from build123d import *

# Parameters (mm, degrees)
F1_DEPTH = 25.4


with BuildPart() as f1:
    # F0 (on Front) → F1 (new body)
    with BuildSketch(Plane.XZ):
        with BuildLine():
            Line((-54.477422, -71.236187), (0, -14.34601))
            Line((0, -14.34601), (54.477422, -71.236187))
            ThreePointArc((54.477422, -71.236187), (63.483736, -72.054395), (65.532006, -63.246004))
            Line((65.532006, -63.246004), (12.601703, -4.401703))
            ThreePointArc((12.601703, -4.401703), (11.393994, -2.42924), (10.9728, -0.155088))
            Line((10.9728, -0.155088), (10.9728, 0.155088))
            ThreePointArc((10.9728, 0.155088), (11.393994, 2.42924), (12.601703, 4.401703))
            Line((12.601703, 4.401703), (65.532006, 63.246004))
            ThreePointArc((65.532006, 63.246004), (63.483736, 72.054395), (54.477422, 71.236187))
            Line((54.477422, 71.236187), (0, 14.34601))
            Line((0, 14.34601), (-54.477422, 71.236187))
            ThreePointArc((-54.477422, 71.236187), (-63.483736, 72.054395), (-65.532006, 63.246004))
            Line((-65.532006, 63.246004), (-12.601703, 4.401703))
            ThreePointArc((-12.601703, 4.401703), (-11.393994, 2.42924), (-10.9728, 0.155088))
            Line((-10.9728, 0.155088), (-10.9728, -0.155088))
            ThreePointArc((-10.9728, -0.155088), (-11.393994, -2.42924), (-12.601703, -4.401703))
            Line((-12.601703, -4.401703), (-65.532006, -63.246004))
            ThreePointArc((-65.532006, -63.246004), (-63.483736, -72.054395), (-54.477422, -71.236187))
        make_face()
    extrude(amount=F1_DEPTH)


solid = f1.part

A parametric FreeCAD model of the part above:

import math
import FreeCAD as App
import Part
import Sketcher
Q = App.Units.Quantity

doc = App.newDocument("Part")
body = doc.addObject("PartDesign::Body", "Body")

# Sketch on XZ plane
sketch1 = doc.addObject("Sketcher::SketchObject", "Sketch")
body.addObject(sketch1)
sketch1.AttachmentSupport = (doc.XZ_Plane, [""])
sketch1.MapMode = "FlatFace"
sketch1.addGeometry(Part.LineSegment(App.Vector(-54.477422, -71.236187, 0), App.Vector(0, -14.34601, 0)), False)
sketch1.addGeometry(Part.LineSegment(App.Vector(0, -14.34601, 0), App.Vector(54.477422, -71.236187, 0)), False)
sketch1.addGeometry(Part.ArcOfCircle(Part.Circle(App.Vector(59.450368, -66.474147, 0), App.Vector(0, 0, 1), 6.88529), math.radians(-136.241107), math.radians(27.959434)), False)
sketch1.addGeometry(Part.LineSegment(App.Vector(65.532006, -63.246004, 0), App.Vector(12.601703, -4.401703, 0)), False)
sketch1.addGeometry(Part.ArcOfCircle(Part.Circle(App.Vector(17.322789, -0.155092, 0), App.Vector(0, 0, 1), 6.349989), math.radians(179.999966), math.radians(221.971344)), False)
sketch1.addGeometry(Part.LineSegment(App.Vector(10.9728, -0.155088, 0), App.Vector(10.9728, 0.155088, 0)), False)
sketch1.addGeometry(Part.ArcOfCircle(Part.Circle(App.Vector(17.322789, 0.155092, 0), App.Vector(0, 0, 1), 6.349989), math.radians(138.028656), math.radians(180.000034)), False)
sketch1.addGeometry(Part.LineSegment(App.Vector(12.601703, 4.401703, 0), App.Vector(65.532006, 63.246004, 0)), False)
sketch1.addGeometry(Part.ArcOfCircle(Part.Circle(App.Vector(59.450368, 66.474147, 0), App.Vector(0, 0, 1), 6.88529), math.radians(-27.959434), math.radians(136.241107)), False)
sketch1.addGeometry(Part.LineSegment(App.Vector(54.477422, 71.236187, 0), App.Vector(0, 14.34601, 0)), False)
sketch1.addGeometry(Part.LineSegment(App.Vector(0, 14.34601, 0), App.Vector(-54.477422, 71.236187, 0)), False)
sketch1.addGeometry(Part.ArcOfCircle(Part.Circle(App.Vector(-59.450368, 66.474147, 0), App.Vector(0, 0, 1), 6.88529), math.radians(43.758893), math.radians(207.959434)), False)
sketch1.addGeometry(Part.LineSegment(App.Vector(-65.532006, 63.246004, 0), App.Vector(-12.601703, 4.401703, 0)), False)
sketch1.addGeometry(Part.ArcOfCircle(Part.Circle(App.Vector(-17.322789, 0.155092, 0), App.Vector(0, 0, 1), 6.349989), math.radians(-0.000034), math.radians(41.971344)), False)
sketch1.addGeometry(Part.LineSegment(App.Vector(-10.9728, 0.155088, 0), App.Vector(-10.9728, -0.155088, 0)), False)
sketch1.addGeometry(Part.ArcOfCircle(Part.Circle(App.Vector(-17.322789, -0.155092, 0), App.Vector(0, 0, 1), 6.349989), math.radians(-41.971344), math.radians(0.000034)), False)
sketch1.addGeometry(Part.LineSegment(App.Vector(-12.601703, -4.401703, 0), App.Vector(-65.532006, -63.246004, 0)), False)
sketch1.addGeometry(Part.ArcOfCircle(Part.Circle(App.Vector(-59.450368, -66.474147, 0), App.Vector(0, 0, 1), 6.88529), math.radians(152.040566), math.radians(316.241107)), False)
sketch1.addConstraint(Sketcher.Constraint("Coincident", 0, 2, 1, 1))
sketch1.addConstraint(Sketcher.Constraint("Coincident", 1, 2, 2, 1))
sketch1.addConstraint(Sketcher.Constraint("Coincident", 2, 2, 3, 1))
sketch1.addConstraint(Sketcher.Constraint("Coincident", 3, 2, 4, 2))
sketch1.addConstraint(Sketcher.Constraint("Coincident", 4, 1, 5, 1))
sketch1.addConstraint(Sketcher.Constraint("Coincident", 5, 2, 6, 2))
sketch1.addConstraint(Sketcher.Constraint("Coincident", 6, 1, 7, 1))
sketch1.addConstraint(Sketcher.Constraint("Coincident", 7, 2, 8, 1))
sketch1.addConstraint(Sketcher.Constraint("Coincident", 8, 2, 9, 1))
sketch1.addConstraint(Sketcher.Constraint("Coincident", 9, 2, 10, 1))
sketch1.addConstraint(Sketcher.Constraint("Coincident", 10, 2, 11, 1))
sketch1.addConstraint(Sketcher.Constraint("Coincident", 11, 2, 12, 1))
sketch1.addConstraint(Sketcher.Constraint("Coincident", 12, 2, 13, 2))
sketch1.addConstraint(Sketcher.Constraint("Coincident", 13, 1, 14, 1))
sketch1.addConstraint(Sketcher.Constraint("Coincident", 14, 2, 15, 2))
sketch1.addConstraint(Sketcher.Constraint("Coincident", 15, 1, 16, 1))
sketch1.addConstraint(Sketcher.Constraint("Coincident", 16, 2, 17, 1))
sketch1.addConstraint(Sketcher.Constraint("Coincident", 17, 2, 0, 1))
sketch1.addConstraint(Sketcher.Constraint("Vertical", 5))
sketch1.addConstraint(Sketcher.Constraint("Vertical", 14))
sketch1.addConstraint(Sketcher.Constraint("PointOnObject", 0, 2, -2))
sketch1.addConstraint(Sketcher.Constraint("PointOnObject", 9, 2, -2))
sketch1.addConstraint(Sketcher.Constraint("DistanceY", 2, 2, -1, 1, Q("2.4900002 in")))
sketch1.addConstraint(Sketcher.Constraint("DistanceY", -1, 1, 7, 2, Q("2.4900002 in")))
sketch1.addConstraint(Sketcher.Constraint("DistanceY", -1, 1, 11, 2, Q("2.4900002 in")))
sketch1.addConstraint(Sketcher.Constraint("DistanceY", 16, 2, -1, 1, Q("2.4900002 in")))
sketch1.addConstraint(Sketcher.Constraint("DistanceX", -1, 1, 4, 1, Q("0.432 in")))
sketch1.addConstraint(Sketcher.Constraint("DistanceX", 13, 1, -1, 1, Q("0.432 in")))
sketch1.addConstraint(Sketcher.Constraint("Radius", 2, 6.88529))
sketch1.addConstraint(Sketcher.Constraint("Radius", 4, 6.349989))
sketch1.addConstraint(Sketcher.Constraint("Radius", 6, 6.349989))
sketch1.addConstraint(Sketcher.Constraint("Radius", 8, 6.88529))
sketch1.addConstraint(Sketcher.Constraint("Radius", 11, 6.88529))
sketch1.addConstraint(Sketcher.Constraint("Radius", 13, 6.349989))
sketch1.addConstraint(Sketcher.Constraint("Radius", 15, 6.349989))
sketch1.addConstraint(Sketcher.Constraint("Radius", 17, 6.88529))
sketch1.addConstraint(Sketcher.Constraint("DistanceY", 0, 2, 6, 3, 14.501102))
sketch1.addConstraint(Sketcher.Constraint("DistanceY", 0, 2, 13, 3, 14.501102))
sketch1.addConstraint(Sketcher.Constraint("DistanceY", 6, 1, 7, 2, 58.844301))
sketch1.addConstraint(Sketcher.Constraint("DistanceY", 4, 1, 9, 2, 14.501098))
sketch1.addConstraint(Sketcher.Constraint("DistanceY", 16, 2, 15, 1, 58.844301))
sketch1.addConstraint(Sketcher.Constraint("DistanceY", 5, 1, 5, 2, 0.310176))
sketch1.addConstraint(Sketcher.Constraint("DistanceY", 14, 2, 14, 1, 0.310176))
sketch1.addConstraint(Sketcher.Constraint("DistanceX", -1, 1, 2, 3, 59.450368))
sketch1.addConstraint(Sketcher.Constraint("DistanceY", 4, 3, -1, 1, 0.155092))
sketch1.addConstraint(Sketcher.Constraint("DistanceY", -1, 1, 6, 3, 0.155092))
sketch1.addConstraint(Sketcher.Constraint("DistanceX", -1, 1, 8, 3, 59.450368))
sketch1.addConstraint(Sketcher.Constraint("DistanceX", 11, 3, -1, 1, 59.450368))
sketch1.addConstraint(Sketcher.Constraint("DistanceY", 15, 3, -1, 1, 0.155092))
sketch1.addConstraint(Sketcher.Constraint("DistanceX", 17, 3, -1, 1, 59.450368))
sketch1.addConstraint(Sketcher.Constraint("DistanceX", -1, 1, 1, 2, 54.477422))
sketch1.addConstraint(Sketcher.Constraint("DistanceY", 4, 1, -1, 1, 0.155088))
sketch1.addConstraint(Sketcher.Constraint("DistanceX", -1, 1, 8, 2, 54.477422))
sketch1.addConstraint(Sketcher.Constraint("DistanceX", 10, 2, -1, 1, 54.477422))
sketch1.addConstraint(Sketcher.Constraint("DistanceX", 17, 2, -1, 1, 54.477422))
sketch1.addConstraint(Sketcher.Constraint("DistanceY", 2, 3, 6, 3, 66.629239))
sketch1.addConstraint(Sketcher.Constraint("DistanceY", 4, 3, 8, 3, 66.629239))
sketch1.addConstraint(Sketcher.Constraint("DistanceY", 4, 3, 11, 3, 66.629239))
sketch1.addConstraint(Sketcher.Constraint("DistanceY", 17, 3, 13, 3, 66.629239))
sketch1.addConstraint(Sketcher.Constraint("DistanceY", 3, 2, 4, 3, 4.246611))
sketch1.addConstraint(Sketcher.Constraint("DistanceY", 13, 3, 12, 2, 4.246611))
sketch1.addConstraint(Sketcher.Constraint("DistanceY", 15, 3, 13, 1, 0.31018))
pad1 = doc.addObject("PartDesign::Pad", "Pad")
body.addObject(pad1)
pad1.Profile = sketch1
pad1.Length = Q("1 in")

doc.recompute()
